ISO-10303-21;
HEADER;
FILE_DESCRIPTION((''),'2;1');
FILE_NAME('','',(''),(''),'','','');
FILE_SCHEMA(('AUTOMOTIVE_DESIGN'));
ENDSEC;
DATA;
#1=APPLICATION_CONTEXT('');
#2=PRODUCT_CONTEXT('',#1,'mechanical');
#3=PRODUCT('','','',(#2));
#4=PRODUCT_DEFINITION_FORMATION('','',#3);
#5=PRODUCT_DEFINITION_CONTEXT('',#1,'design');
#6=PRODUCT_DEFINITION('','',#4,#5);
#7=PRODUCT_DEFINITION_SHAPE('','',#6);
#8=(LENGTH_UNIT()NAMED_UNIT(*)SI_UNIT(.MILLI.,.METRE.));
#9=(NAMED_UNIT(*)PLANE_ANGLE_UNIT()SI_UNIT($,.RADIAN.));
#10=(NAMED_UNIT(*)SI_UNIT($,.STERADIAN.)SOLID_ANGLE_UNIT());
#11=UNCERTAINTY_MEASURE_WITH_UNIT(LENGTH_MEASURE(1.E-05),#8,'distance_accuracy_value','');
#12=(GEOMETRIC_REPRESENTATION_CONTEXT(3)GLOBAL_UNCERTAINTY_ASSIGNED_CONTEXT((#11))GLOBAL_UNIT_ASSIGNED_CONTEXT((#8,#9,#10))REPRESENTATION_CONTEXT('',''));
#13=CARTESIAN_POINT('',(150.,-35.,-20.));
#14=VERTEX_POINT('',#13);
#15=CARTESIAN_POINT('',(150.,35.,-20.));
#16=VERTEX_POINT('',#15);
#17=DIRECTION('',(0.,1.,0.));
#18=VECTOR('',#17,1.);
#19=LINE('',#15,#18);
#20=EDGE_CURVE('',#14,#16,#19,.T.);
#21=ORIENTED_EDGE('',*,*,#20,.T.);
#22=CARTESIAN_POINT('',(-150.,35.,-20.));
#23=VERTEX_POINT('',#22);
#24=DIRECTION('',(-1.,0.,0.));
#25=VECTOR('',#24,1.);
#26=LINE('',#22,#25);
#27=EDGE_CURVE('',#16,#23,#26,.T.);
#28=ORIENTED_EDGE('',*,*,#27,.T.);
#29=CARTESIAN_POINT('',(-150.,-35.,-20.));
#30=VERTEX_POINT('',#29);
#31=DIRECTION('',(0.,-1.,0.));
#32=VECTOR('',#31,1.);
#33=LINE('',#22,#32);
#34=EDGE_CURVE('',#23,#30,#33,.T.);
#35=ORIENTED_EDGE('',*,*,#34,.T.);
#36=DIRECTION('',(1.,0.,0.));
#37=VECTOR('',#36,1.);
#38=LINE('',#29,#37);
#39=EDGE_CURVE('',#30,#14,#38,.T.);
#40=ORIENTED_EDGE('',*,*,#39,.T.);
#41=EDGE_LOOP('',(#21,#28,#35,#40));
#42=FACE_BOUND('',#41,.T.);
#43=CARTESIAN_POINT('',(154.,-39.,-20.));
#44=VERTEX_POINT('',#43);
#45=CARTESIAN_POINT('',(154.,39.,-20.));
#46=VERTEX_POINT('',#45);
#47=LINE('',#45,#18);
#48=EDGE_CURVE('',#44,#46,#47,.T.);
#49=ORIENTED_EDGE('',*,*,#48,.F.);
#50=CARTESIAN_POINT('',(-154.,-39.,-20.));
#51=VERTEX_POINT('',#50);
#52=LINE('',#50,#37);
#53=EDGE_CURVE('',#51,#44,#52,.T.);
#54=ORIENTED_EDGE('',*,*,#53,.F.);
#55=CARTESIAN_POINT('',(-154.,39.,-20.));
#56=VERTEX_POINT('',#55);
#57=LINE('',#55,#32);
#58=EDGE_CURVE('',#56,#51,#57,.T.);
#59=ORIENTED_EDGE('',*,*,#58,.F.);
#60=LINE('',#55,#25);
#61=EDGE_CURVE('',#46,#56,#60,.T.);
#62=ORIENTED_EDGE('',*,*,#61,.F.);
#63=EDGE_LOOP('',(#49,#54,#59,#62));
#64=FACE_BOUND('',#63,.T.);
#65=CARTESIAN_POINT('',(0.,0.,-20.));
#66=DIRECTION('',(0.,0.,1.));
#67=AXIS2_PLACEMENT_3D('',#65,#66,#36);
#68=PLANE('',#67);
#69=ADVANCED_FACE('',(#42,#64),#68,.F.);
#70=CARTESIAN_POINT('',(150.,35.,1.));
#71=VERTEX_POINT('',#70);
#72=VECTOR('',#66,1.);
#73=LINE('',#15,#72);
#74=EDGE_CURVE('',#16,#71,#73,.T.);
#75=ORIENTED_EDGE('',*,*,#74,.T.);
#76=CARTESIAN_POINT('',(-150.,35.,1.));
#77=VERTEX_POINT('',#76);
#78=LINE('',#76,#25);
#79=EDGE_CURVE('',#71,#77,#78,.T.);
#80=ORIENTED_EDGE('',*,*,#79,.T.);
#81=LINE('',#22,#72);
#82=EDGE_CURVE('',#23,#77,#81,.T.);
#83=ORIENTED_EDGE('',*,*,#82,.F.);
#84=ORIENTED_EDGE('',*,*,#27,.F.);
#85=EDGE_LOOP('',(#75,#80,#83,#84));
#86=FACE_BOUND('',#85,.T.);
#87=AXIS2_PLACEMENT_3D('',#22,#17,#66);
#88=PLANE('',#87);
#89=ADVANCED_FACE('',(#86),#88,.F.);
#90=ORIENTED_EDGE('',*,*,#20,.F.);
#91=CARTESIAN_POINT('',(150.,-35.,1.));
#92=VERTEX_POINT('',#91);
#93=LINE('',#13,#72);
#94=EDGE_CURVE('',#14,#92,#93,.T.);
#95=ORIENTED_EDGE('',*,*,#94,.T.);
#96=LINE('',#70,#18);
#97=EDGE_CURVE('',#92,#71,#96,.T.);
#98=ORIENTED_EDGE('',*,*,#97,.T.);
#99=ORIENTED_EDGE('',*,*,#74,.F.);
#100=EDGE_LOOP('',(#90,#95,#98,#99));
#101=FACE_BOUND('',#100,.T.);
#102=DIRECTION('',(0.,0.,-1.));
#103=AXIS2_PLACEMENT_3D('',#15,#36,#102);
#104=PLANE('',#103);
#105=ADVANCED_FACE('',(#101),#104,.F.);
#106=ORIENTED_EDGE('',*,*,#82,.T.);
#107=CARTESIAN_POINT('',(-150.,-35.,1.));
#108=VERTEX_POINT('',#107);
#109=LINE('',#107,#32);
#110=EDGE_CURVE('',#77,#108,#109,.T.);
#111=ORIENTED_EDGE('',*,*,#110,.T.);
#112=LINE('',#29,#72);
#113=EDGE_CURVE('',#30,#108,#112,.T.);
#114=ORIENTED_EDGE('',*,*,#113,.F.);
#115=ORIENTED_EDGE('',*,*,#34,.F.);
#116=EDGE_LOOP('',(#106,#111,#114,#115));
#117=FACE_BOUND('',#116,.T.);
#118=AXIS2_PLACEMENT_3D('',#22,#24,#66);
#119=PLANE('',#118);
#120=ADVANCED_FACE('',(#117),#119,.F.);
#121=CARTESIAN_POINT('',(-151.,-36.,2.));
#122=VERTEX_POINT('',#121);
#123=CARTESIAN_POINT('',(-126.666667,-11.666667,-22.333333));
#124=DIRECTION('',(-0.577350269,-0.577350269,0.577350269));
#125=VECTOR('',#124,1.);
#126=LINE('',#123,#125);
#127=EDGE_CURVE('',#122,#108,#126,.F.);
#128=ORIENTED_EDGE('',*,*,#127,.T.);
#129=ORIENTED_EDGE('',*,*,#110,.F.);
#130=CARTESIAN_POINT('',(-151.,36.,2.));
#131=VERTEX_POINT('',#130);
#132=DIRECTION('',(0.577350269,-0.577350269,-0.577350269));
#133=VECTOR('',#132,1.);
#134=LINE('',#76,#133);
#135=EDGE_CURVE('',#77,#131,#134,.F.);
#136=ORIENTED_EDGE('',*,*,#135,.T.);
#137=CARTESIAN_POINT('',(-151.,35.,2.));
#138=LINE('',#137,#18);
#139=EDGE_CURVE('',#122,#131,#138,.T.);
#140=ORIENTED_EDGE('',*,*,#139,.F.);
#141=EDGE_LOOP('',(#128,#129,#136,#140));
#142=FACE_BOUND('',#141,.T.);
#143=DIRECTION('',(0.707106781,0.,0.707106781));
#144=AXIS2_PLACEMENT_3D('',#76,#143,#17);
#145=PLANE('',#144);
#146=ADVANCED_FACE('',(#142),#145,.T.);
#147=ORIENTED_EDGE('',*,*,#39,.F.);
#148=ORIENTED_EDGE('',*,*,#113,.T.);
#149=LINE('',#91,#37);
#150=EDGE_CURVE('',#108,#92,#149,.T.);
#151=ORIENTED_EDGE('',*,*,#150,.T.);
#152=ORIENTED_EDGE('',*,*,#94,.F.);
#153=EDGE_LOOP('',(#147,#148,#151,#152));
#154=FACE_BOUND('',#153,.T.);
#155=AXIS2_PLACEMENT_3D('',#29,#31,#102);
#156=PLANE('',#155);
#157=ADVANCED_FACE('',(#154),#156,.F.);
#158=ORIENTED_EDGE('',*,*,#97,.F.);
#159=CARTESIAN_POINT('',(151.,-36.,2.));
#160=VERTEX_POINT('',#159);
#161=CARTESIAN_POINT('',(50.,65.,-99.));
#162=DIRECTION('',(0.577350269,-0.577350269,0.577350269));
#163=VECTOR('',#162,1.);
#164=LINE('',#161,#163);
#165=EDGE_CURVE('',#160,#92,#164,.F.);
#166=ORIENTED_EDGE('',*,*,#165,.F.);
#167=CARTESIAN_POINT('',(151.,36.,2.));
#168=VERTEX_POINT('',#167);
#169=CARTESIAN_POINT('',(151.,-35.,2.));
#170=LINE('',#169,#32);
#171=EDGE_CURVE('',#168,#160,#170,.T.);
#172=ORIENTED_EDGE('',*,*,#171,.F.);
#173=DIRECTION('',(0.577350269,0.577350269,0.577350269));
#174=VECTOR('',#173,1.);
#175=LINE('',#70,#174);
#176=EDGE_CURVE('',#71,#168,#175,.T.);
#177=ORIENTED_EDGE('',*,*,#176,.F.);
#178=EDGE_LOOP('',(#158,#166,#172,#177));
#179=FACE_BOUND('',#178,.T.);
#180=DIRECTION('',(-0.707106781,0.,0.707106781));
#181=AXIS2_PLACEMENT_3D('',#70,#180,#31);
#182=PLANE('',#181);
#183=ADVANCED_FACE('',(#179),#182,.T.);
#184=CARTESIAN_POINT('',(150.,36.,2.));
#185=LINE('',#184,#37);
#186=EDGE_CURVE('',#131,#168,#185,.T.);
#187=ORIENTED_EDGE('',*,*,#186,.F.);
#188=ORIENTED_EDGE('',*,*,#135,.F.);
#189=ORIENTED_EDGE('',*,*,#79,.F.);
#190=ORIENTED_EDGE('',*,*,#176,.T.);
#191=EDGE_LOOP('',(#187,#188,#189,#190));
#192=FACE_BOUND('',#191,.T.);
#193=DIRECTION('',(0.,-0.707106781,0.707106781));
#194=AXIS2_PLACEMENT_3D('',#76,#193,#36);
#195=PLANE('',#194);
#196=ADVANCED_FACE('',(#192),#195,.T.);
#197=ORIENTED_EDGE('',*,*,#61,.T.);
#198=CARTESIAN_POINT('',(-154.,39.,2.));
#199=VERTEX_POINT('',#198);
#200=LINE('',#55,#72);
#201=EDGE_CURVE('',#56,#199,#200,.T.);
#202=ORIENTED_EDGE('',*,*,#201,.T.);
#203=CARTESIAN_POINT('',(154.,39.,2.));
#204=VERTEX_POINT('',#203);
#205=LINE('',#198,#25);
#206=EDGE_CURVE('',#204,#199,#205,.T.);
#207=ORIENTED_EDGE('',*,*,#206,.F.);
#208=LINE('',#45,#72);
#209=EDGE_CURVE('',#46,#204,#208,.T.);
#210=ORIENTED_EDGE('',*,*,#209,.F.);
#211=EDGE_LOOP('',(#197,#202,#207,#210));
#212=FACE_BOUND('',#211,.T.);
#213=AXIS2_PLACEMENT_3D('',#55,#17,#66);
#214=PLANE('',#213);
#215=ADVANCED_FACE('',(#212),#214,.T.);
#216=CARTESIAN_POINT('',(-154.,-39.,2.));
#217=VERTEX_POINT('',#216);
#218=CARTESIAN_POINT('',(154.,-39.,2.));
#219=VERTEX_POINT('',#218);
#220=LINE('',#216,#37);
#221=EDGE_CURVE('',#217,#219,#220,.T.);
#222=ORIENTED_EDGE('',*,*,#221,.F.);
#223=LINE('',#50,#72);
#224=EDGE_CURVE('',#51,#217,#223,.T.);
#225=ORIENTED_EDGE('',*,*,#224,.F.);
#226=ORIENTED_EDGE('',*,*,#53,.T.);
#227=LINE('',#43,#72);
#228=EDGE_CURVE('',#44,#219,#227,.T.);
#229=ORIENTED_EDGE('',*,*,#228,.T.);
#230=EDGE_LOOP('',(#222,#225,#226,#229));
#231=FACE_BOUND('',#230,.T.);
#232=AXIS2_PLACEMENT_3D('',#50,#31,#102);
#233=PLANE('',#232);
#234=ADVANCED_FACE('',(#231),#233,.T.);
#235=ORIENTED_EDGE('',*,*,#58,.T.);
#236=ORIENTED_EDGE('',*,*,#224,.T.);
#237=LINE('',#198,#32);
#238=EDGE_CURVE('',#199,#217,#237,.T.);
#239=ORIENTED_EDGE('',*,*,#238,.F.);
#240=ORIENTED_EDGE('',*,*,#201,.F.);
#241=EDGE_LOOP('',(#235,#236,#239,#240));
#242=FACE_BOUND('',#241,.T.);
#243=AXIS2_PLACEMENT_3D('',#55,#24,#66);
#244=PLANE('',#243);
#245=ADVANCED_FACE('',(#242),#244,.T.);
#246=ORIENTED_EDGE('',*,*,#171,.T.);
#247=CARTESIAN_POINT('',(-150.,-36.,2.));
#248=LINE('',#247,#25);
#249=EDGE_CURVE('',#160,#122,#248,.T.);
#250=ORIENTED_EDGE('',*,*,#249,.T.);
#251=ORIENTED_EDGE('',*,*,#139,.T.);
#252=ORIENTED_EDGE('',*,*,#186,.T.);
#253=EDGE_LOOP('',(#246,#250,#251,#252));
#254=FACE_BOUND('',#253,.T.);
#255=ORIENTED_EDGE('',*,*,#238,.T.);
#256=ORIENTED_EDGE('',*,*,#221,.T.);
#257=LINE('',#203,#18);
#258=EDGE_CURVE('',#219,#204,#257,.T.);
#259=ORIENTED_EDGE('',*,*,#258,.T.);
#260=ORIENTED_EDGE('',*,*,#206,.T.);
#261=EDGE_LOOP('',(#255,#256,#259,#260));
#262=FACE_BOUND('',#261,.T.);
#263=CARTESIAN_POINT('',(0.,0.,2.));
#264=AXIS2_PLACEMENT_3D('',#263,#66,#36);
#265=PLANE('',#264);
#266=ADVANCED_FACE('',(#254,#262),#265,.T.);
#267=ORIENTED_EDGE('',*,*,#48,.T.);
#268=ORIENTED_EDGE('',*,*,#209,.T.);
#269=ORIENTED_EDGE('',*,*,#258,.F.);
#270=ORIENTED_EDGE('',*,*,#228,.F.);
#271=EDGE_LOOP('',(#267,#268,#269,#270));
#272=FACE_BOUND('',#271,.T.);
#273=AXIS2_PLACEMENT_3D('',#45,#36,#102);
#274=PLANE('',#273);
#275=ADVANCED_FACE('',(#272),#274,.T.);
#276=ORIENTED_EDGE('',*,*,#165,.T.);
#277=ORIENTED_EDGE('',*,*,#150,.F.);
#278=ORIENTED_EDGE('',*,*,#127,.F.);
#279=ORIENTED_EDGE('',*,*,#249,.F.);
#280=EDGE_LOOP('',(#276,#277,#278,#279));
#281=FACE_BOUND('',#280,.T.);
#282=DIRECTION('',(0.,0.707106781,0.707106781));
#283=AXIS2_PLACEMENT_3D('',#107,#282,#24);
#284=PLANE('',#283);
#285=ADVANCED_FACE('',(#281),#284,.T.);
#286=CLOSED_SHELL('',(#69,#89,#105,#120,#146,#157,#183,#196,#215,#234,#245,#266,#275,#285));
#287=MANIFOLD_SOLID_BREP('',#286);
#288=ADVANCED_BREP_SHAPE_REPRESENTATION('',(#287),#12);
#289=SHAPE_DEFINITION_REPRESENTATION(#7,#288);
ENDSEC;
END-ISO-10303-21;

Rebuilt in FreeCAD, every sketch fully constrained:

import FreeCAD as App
import Part
import Sketcher
Q = App.Units.Quantity


def edges_at(feature, points):
    """Names of the edges that pass closest to the given points."""
    edges = feature.Shape.Edges
    near = lambda p: min(range(len(edges)), key=lambda i: edges[i].distToShape(Part.Vertex(*p))[0])
    return sorted({f"Edge{near(p) + 1}" for p in points})

doc = App.newDocument("Part")
body = doc.addObject("PartDesign::Body", "Body")

# Sketch on XY plane
sketch1 = body.newObject("Sketcher::SketchObject", "Sketch")
sketch1.AttachmentSupport = (doc.getObject("XY_Plane"), [""])
sketch1.MapMode = "FlatFace"
sketch1.addGeometry([
    Part.LineSegment(App.Vector(-154, 39, 0), App.Vector(-154, -39, 0)),  # 0
    Part.LineSegment(App.Vector(-154, -39, 0), App.Vector(154, -39, 0)),  # 1
    Part.LineSegment(App.Vector(154, -39, 0), App.Vector(154, 39, 0)),  # 2
    Part.LineSegment(App.Vector(154, 39, 0), App.Vector(-154, 39, 0)),  # 3
    Part.LineSegment(App.Vector(150, -35, 0), App.Vector(-150, -35, 0)),  # 4
    Part.LineSegment(App.Vector(-150, -35, 0), App.Vector(-150, 35, 0)),  # 5
    Part.LineSegment(App.Vector(-150, 35, 0), App.Vector(150, 35, 0)),  # 6
    Part.LineSegment(App.Vector(150, 35, 0), App.Vector(150, -35, 0)),  # 7
], False)
sketch1.addConstraint([
    Sketcher.Constraint("Coincident", 0, 2, 1, 1),
    Sketcher.Constraint("Coincident", 1, 2, 2, 1),
    Sketcher.Constraint("Coincident", 2, 2, 3, 1),
    Sketcher.Constraint("Coincident", 3, 2, 0, 1),
    Sketcher.Constraint("Coincident", 4, 2, 5, 1),
    Sketcher.Constraint("Coincident", 5, 2, 6, 1),
    Sketcher.Constraint("Coincident", 6, 2, 7, 1),
    Sketcher.Constraint("Coincident", 7, 2, 4, 1),
    Sketcher.Constraint("Vertical", 0),
    Sketcher.Constraint("Horizontal", 1),
    Sketcher.Constraint("Vertical", 2),
    Sketcher.Constraint("Horizontal", 3),
    Sketcher.Constraint("Horizontal", 4),
    Sketcher.Constraint("Vertical", 5),
    Sketcher.Constraint("Horizontal", 6),
    Sketcher.Constraint("Vertical", 7),
    Sketcher.Constraint("Symmetric", 0, 2, 2, 2, -1, 1),
    Sketcher.Constraint("Symmetric", 4, 2, 6, 2, -1, 1),
    Sketcher.Constraint("DistanceX", 1, 1, 1, 2, Q("308 mm")),
    Sketcher.Constraint("DistanceX", 4, 2, 4, 1, Q("300 mm")),
    Sketcher.Constraint("DistanceY", 0, 2, 0, 1, Q("78 mm")),
    Sketcher.Constraint("DistanceY", 5, 1, 5, 2, Q("70 mm")),
])
pad1 = body.newObject("PartDesign::Pad", "Pad")
pad1.Profile = sketch1
pad1.Type = "TwoLengths"
pad1.Length = 2
pad1.Length2 = 20
doc.recompute()

chamfer = body.newObject("PartDesign::Chamfer", "Chamfer")
chamfer.Base = (pad1, edges_at(pad1, [
    (-150, 0, 2),
    (0, -35, 2),
    (150, 0, 2),
    (0, 35, 2),
]))
chamfer.Size = 1

doc.recompute()
